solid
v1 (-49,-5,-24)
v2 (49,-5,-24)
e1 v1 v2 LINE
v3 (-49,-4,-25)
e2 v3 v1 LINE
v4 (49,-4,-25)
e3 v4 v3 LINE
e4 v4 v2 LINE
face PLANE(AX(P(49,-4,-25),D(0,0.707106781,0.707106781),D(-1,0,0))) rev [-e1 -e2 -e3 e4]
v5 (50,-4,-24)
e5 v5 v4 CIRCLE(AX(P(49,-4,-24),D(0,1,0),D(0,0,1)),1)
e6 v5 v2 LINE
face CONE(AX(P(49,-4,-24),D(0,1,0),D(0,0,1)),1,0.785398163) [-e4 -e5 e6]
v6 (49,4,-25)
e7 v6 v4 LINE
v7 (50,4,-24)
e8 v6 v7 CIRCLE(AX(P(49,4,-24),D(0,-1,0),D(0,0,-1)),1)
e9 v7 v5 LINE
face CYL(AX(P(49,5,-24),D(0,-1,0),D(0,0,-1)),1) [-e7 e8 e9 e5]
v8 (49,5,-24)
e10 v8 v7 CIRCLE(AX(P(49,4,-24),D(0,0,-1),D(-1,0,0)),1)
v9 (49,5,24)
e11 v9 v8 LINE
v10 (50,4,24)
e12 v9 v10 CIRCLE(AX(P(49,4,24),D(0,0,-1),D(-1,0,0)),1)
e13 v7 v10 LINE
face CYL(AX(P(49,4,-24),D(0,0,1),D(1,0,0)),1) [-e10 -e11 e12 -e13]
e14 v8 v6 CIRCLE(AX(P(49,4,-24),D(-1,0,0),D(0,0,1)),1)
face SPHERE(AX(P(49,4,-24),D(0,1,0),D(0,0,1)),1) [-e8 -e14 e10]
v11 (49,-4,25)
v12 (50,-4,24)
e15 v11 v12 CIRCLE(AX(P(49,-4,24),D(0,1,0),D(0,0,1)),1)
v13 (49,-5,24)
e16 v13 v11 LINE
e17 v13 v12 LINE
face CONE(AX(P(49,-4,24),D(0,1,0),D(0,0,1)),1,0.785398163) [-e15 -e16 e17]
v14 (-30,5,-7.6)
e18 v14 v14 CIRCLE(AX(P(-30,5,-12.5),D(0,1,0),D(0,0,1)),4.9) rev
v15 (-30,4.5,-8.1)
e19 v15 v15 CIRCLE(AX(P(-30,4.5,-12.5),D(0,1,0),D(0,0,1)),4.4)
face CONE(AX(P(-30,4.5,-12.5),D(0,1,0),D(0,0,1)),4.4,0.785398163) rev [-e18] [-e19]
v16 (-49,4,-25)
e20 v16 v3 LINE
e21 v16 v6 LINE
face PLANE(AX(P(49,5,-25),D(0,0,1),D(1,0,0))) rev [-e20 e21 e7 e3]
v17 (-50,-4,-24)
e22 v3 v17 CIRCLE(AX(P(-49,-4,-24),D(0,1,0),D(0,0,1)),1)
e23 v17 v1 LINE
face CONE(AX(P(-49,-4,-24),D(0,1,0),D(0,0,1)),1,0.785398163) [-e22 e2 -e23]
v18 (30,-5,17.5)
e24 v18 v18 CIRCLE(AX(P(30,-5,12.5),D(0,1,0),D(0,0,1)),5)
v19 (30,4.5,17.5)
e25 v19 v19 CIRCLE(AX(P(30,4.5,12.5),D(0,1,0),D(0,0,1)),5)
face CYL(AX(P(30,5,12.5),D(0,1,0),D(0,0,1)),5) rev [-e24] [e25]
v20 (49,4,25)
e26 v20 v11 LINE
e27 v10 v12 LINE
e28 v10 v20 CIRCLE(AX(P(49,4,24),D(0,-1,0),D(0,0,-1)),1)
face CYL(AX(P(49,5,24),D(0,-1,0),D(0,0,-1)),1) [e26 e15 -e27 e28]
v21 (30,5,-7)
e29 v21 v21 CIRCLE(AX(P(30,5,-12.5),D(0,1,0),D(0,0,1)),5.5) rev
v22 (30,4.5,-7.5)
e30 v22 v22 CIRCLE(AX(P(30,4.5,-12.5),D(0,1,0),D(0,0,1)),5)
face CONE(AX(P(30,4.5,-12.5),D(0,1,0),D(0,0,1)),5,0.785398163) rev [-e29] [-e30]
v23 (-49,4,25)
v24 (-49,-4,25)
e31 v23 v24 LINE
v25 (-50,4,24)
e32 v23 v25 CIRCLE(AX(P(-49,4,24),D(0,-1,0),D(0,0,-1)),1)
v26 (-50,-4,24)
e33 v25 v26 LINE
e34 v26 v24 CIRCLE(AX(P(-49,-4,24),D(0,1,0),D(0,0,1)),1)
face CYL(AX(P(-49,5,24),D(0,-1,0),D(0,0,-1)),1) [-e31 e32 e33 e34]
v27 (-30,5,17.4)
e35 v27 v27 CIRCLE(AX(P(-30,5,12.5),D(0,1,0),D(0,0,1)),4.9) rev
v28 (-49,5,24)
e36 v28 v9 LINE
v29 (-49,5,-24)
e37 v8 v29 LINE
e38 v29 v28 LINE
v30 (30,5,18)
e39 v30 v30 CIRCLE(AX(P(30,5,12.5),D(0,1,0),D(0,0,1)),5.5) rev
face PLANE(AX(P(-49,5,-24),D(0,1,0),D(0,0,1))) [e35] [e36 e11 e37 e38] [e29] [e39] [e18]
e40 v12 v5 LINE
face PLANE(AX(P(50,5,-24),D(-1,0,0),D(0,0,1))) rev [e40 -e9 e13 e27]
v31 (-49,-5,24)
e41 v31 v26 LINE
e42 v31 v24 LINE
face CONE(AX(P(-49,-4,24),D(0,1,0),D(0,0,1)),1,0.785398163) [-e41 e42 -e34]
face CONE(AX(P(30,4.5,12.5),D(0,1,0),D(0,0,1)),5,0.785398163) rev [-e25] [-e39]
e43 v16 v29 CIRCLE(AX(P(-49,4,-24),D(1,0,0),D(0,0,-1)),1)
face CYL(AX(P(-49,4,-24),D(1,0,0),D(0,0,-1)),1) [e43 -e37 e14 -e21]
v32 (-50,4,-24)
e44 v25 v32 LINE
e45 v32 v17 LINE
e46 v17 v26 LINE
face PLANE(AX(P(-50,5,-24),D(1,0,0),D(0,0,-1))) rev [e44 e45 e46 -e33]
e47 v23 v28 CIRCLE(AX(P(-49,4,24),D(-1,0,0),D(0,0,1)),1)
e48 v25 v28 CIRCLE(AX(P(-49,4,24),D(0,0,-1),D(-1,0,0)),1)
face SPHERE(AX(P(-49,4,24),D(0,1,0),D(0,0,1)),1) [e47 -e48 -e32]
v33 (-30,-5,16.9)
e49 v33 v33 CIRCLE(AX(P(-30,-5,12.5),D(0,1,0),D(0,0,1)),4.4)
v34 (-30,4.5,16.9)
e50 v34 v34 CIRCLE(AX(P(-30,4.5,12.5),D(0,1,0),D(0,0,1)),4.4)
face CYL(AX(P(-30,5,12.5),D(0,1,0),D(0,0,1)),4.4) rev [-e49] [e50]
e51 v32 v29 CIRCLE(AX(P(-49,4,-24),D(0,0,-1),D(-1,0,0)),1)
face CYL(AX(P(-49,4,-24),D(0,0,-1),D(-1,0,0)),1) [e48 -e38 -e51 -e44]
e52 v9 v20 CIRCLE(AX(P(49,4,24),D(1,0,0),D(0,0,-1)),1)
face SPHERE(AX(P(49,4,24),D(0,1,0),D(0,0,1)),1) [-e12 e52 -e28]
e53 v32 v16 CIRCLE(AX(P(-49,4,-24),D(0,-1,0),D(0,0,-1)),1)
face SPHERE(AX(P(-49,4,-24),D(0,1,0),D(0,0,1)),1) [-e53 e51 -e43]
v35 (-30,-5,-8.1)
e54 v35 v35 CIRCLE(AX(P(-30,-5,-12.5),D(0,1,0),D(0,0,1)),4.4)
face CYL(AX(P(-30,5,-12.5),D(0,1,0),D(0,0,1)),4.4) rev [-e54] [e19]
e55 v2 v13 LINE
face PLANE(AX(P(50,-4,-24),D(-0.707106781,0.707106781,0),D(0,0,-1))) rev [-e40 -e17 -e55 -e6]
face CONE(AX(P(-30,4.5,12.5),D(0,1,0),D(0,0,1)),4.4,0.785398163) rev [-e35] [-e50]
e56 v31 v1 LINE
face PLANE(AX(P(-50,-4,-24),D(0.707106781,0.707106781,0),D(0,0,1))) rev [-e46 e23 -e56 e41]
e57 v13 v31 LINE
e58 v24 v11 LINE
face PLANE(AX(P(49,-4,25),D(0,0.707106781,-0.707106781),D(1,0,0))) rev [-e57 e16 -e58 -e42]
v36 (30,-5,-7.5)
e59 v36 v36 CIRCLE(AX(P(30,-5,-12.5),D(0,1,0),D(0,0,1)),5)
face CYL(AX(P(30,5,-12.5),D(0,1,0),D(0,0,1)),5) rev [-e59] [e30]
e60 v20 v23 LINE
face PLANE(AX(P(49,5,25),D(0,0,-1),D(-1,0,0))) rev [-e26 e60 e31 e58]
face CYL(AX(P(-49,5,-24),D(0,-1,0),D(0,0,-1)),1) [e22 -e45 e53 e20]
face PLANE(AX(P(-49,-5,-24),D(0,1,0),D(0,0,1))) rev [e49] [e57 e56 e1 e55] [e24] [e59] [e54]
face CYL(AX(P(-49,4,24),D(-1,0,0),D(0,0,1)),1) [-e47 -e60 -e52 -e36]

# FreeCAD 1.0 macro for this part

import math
import FreeCAD as App
import Part
import Sketcher

V = App.Vector


def edges_at(feature, points):
    """Names of the edges that pass closest to the given points."""
    edges = feature.Shape.Edges
    near = lambda p: min(range(len(edges)), key=lambda i: edges[i].distToShape(Part.Vertex(*p))[0])
    return sorted({f"Edge{near(p) + 1}" for p in points})

doc = App.newDocument("Part")
params = doc.addObject("Spreadsheet::Sheet", "Params")
for row, (alias, value) in enumerate([
    ("sketch1_radius", "1 mm"),
    ("sketch1_width", "98 mm"),
    ("sketch1_height", "48 mm"),
    ("pad1_length", "10 mm"),
    ("fillet_radius", "1 mm"),
    ("chamfer_size", "1 mm"),
    ("sketch2_diameter", "8.8 mm"),
    ("hole_diameter", "8.8 mm"),
    ("sketch3_diameter", "10 mm"),
    ("hole2_diameter", "10 mm"),
    ("chamfer2_size", "0.5 mm"),
], start=1):
    params.set(f"A{row}", alias)
    params.set(f"B{row}", "=" + value)
    params.setAlias(f"B{row}", alias)

body = doc.addObject("PartDesign::Body", "Body")

sketch1 = body.newObject("Sketcher::SketchObject", "Sketch")
sketch1.AttachmentSupport = (doc.getObject("XZ_Plane"), [""])
sketch1.MapMode = "FlatFace"
sketch1.addGeometry(Part.LineSegment(V(49, -25, 0), V(-49, -25, 0)), False)
sketch1.addGeometry(Part.ArcOfCircle(Part.Circle(V(-49, -24, 0), V(0, 0, 1), 1), math.radians(-180), math.radians(-90)), False)
sketch1.addGeometry(Part.LineSegment(V(-50, -24, 0), V(-50, 24, 0)), False)
sketch1.addGeometry(Part.ArcOfCircle(Part.Circle(V(-49, 24, 0), V(0, 0, 1), 1), math.radians(90), math.radians(180)), False)
sketch1.addGeometry(Part.LineSegment(V(-49, 25, 0), V(49, 25, 0)), False)
sketch1.addGeometry(Part.ArcOfCircle(Part.Circle(V(49, 24, 0), V(0, 0, 1), 1), math.radians(0), math.radians(90)), False)
sketch1.addGeometry(Part.LineSegment(V(50, 24, 0), V(50, -24, 0)), False)
sketch1.addGeometry(Part.ArcOfCircle(Part.Circle(V(49, -24, 0), V(0, 0, 1), 1), math.radians(-90), math.radians(0)), False)
sketch1.addConstraint(Sketcher.Constraint("Tangent", 0, 2, 1, 2))
sketch1.addConstraint(Sketcher.Constraint("Tangent", 1, 1, 2, 1))
sketch1.addConstraint(Sketcher.Constraint("Tangent", 2, 2, 3, 2))
sketch1.addConstraint(Sketcher.Constraint("Tangent", 3, 1, 4, 1))
sketch1.addConstraint(Sketcher.Constraint("Tangent", 4, 2, 5, 2))
sketch1.addConstraint(Sketcher.Constraint("Tangent", 5, 1, 6, 1))
sketch1.addConstraint(Sketcher.Constraint("Tangent", 6, 2, 7, 2))
sketch1.addConstraint(Sketcher.Constraint("Tangent", 7, 1, 0, 1))
sketch1.addConstraint(Sketcher.Constraint("Horizontal", 0))
sketch1.addConstraint(Sketcher.Constraint("Vertical", 2))
sketch1.addConstraint(Sketcher.Constraint("Horizontal", 4))
sketch1.addConstraint(Sketcher.Constraint("Vertical", 6))
sketch1.addConstraint(Sketcher.Constraint("Equal", 1, 3))
sketch1.addConstraint(Sketcher.Constraint("Equal", 3, 5))
sketch1.addConstraint(Sketcher.Constraint("Equal", 5, 7))
sketch1.addConstraint(Sketcher.Constraint("Symmetric", 1, 3, 5, 3, -1, 1))
sketch1.addConstraint(Sketcher.Constraint("Radius", 1, 1.0))
sketch1.addConstraint(Sketcher.Constraint("DistanceX", 0, 2, 0, 1, 98.0))
sketch1.addConstraint(Sketcher.Constraint("DistanceY", 2, 1, 2, 2, 48.0))
sketch1.setExpression("Constraints[16]", "Params.sketch1_radius")
sketch1.setExpression("Constraints[17]", "Params.sketch1_width")
sketch1.setExpression("Constraints[18]", "Params.sketch1_height")
pad1 = body.newObject("PartDesign::Pad", "Pad")
pad1.Profile = sketch1
pad1.setExpression("Length", "Params.pad1_length")
pad1.Midplane = True
doc.recompute()

fillet = body.newObject("PartDesign::Fillet", "Fillet")
fillet.Base = (pad1, edges_at(pad1, [
    (-49.707, 5, 24.707),
    (0, 5, 25),
    (49.707, 5, 24.707),
    (50, 5, 0),
    (49.707, 5, -24.707),
    (0, 5, -25),
    (-49.707, 5, -24.707),
    (-50, 5, 0),
]))
fillet.setExpression("Radius", "Params.fillet_radius")
doc.recompute()

chamfer = body.newObject("PartDesign::Chamfer", "Chamfer")
chamfer.Base = (fillet, edges_at(fillet, [
    (0, -5, 25),
    (-49.707, -5, 24.707),
    (-50, -5, 0),
    (-49.707, -5, -24.707),
    (0, -5, -25),
    (49.707, -5, -24.707),
    (50, -5, 0),
    (49.707, -5, 24.707),
]))
chamfer.setExpression("Size", "Params.chamfer_size")

sketch2 = body.newObject("Sketcher::SketchObject", "Sketch001")
sketch2.AttachmentSupport = (doc.getObject("XZ_Plane"), [""])
sketch2.MapMode = "FlatFace"
sketch2.AttachmentOffset = App.Placement(V(0, 0, -5), App.Rotation())
sketch2.addGeometry(Part.Circle(V(-30, -12.5, 0), V(0, 0, 1), 4.4), False)
sketch2.addGeometry(Part.Circle(V(-30, 12.5, 0), V(0, 0, 1), 4.4), False)
sketch2.addConstraint(Sketcher.Constraint("Equal", 0, 1))
sketch2.addConstraint(Sketcher.Constraint("Symmetric", 0, 3, 1, 3, -1))
sketch2.addConstraint(Sketcher.Constraint("Diameter", 0, 8.8))
sketch2.addConstraint(Sketcher.Constraint("DistanceX", 0, 3, -1, 1, 30.0))
sketch2.addConstraint(Sketcher.Constraint("DistanceY", 0, 3, 1, 3, 25.0))
sketch2.setExpression("Constraints[2]", "Params.sketch2_diameter")
doc.recompute()
hole = body.newObject("PartDesign::Hole", "Hole")
hole.Profile = sketch2
hole.ThreadType = "None"
hole.setExpression("Diameter", "Params.hole_diameter")
hole.DepthType = "ThroughAll"
hole.Reversed = True

sketch3 = body.newObject("Sketcher::SketchObject", "Sketch002")
sketch3.AttachmentSupport = (doc.getObject("XZ_Plane"), [""])
sketch3.MapMode = "FlatFace"
sketch3.AttachmentOffset = App.Placement(V(0, 0, -5), App.Rotation())
sketch3.addGeometry(Part.Circle(V(30, -12, 0), V(0, 0, 1), 5), False)
sketch3.addGeometry(Part.Circle(V(30, 12, 0), V(0, 0, 1), 5), False)
sketch3.addConstraint(Sketcher.Constraint("Equal", 0, 1))
sketch3.addConstraint(Sketcher.Constraint("Symmetric", 0, 3, 1, 3, -1))
sketch3.addConstraint(Sketcher.Constraint("Diameter", 0, 10.0))
sketch3.addConstraint(Sketcher.Constraint("DistanceX", -1, 1, 0, 3, 30.0))
sketch3.addConstraint(Sketcher.Constraint("DistanceY", 0, 3, 1, 3, 25.0))
sketch3.setExpression("Constraints[2]", "Params.sketch3_diameter")
doc.recompute()
hole2 = body.newObject("PartDesign::Hole", "Hole001")
hole2.Profile = sketch3
hole2.ThreadType = "None"
hole2.setExpression("Diameter", "Params.hole2_diameter")
hole2.DepthType = "ThroughAll"
hole2.Reversed = True
doc.recompute()

chamfer2 = body.newObject("PartDesign::Chamfer", "Chamfer001")
chamfer2.Base = (hole2, edges_at(hole2, [
    (-30, 5, 16.9),
    (-30, 5, -8.1),
    (30, 5, 17.5),
    (30, 5, -7.5),
]))
chamfer2.setExpression("Size", "Params.chamfer2_size")

doc.recompute()
